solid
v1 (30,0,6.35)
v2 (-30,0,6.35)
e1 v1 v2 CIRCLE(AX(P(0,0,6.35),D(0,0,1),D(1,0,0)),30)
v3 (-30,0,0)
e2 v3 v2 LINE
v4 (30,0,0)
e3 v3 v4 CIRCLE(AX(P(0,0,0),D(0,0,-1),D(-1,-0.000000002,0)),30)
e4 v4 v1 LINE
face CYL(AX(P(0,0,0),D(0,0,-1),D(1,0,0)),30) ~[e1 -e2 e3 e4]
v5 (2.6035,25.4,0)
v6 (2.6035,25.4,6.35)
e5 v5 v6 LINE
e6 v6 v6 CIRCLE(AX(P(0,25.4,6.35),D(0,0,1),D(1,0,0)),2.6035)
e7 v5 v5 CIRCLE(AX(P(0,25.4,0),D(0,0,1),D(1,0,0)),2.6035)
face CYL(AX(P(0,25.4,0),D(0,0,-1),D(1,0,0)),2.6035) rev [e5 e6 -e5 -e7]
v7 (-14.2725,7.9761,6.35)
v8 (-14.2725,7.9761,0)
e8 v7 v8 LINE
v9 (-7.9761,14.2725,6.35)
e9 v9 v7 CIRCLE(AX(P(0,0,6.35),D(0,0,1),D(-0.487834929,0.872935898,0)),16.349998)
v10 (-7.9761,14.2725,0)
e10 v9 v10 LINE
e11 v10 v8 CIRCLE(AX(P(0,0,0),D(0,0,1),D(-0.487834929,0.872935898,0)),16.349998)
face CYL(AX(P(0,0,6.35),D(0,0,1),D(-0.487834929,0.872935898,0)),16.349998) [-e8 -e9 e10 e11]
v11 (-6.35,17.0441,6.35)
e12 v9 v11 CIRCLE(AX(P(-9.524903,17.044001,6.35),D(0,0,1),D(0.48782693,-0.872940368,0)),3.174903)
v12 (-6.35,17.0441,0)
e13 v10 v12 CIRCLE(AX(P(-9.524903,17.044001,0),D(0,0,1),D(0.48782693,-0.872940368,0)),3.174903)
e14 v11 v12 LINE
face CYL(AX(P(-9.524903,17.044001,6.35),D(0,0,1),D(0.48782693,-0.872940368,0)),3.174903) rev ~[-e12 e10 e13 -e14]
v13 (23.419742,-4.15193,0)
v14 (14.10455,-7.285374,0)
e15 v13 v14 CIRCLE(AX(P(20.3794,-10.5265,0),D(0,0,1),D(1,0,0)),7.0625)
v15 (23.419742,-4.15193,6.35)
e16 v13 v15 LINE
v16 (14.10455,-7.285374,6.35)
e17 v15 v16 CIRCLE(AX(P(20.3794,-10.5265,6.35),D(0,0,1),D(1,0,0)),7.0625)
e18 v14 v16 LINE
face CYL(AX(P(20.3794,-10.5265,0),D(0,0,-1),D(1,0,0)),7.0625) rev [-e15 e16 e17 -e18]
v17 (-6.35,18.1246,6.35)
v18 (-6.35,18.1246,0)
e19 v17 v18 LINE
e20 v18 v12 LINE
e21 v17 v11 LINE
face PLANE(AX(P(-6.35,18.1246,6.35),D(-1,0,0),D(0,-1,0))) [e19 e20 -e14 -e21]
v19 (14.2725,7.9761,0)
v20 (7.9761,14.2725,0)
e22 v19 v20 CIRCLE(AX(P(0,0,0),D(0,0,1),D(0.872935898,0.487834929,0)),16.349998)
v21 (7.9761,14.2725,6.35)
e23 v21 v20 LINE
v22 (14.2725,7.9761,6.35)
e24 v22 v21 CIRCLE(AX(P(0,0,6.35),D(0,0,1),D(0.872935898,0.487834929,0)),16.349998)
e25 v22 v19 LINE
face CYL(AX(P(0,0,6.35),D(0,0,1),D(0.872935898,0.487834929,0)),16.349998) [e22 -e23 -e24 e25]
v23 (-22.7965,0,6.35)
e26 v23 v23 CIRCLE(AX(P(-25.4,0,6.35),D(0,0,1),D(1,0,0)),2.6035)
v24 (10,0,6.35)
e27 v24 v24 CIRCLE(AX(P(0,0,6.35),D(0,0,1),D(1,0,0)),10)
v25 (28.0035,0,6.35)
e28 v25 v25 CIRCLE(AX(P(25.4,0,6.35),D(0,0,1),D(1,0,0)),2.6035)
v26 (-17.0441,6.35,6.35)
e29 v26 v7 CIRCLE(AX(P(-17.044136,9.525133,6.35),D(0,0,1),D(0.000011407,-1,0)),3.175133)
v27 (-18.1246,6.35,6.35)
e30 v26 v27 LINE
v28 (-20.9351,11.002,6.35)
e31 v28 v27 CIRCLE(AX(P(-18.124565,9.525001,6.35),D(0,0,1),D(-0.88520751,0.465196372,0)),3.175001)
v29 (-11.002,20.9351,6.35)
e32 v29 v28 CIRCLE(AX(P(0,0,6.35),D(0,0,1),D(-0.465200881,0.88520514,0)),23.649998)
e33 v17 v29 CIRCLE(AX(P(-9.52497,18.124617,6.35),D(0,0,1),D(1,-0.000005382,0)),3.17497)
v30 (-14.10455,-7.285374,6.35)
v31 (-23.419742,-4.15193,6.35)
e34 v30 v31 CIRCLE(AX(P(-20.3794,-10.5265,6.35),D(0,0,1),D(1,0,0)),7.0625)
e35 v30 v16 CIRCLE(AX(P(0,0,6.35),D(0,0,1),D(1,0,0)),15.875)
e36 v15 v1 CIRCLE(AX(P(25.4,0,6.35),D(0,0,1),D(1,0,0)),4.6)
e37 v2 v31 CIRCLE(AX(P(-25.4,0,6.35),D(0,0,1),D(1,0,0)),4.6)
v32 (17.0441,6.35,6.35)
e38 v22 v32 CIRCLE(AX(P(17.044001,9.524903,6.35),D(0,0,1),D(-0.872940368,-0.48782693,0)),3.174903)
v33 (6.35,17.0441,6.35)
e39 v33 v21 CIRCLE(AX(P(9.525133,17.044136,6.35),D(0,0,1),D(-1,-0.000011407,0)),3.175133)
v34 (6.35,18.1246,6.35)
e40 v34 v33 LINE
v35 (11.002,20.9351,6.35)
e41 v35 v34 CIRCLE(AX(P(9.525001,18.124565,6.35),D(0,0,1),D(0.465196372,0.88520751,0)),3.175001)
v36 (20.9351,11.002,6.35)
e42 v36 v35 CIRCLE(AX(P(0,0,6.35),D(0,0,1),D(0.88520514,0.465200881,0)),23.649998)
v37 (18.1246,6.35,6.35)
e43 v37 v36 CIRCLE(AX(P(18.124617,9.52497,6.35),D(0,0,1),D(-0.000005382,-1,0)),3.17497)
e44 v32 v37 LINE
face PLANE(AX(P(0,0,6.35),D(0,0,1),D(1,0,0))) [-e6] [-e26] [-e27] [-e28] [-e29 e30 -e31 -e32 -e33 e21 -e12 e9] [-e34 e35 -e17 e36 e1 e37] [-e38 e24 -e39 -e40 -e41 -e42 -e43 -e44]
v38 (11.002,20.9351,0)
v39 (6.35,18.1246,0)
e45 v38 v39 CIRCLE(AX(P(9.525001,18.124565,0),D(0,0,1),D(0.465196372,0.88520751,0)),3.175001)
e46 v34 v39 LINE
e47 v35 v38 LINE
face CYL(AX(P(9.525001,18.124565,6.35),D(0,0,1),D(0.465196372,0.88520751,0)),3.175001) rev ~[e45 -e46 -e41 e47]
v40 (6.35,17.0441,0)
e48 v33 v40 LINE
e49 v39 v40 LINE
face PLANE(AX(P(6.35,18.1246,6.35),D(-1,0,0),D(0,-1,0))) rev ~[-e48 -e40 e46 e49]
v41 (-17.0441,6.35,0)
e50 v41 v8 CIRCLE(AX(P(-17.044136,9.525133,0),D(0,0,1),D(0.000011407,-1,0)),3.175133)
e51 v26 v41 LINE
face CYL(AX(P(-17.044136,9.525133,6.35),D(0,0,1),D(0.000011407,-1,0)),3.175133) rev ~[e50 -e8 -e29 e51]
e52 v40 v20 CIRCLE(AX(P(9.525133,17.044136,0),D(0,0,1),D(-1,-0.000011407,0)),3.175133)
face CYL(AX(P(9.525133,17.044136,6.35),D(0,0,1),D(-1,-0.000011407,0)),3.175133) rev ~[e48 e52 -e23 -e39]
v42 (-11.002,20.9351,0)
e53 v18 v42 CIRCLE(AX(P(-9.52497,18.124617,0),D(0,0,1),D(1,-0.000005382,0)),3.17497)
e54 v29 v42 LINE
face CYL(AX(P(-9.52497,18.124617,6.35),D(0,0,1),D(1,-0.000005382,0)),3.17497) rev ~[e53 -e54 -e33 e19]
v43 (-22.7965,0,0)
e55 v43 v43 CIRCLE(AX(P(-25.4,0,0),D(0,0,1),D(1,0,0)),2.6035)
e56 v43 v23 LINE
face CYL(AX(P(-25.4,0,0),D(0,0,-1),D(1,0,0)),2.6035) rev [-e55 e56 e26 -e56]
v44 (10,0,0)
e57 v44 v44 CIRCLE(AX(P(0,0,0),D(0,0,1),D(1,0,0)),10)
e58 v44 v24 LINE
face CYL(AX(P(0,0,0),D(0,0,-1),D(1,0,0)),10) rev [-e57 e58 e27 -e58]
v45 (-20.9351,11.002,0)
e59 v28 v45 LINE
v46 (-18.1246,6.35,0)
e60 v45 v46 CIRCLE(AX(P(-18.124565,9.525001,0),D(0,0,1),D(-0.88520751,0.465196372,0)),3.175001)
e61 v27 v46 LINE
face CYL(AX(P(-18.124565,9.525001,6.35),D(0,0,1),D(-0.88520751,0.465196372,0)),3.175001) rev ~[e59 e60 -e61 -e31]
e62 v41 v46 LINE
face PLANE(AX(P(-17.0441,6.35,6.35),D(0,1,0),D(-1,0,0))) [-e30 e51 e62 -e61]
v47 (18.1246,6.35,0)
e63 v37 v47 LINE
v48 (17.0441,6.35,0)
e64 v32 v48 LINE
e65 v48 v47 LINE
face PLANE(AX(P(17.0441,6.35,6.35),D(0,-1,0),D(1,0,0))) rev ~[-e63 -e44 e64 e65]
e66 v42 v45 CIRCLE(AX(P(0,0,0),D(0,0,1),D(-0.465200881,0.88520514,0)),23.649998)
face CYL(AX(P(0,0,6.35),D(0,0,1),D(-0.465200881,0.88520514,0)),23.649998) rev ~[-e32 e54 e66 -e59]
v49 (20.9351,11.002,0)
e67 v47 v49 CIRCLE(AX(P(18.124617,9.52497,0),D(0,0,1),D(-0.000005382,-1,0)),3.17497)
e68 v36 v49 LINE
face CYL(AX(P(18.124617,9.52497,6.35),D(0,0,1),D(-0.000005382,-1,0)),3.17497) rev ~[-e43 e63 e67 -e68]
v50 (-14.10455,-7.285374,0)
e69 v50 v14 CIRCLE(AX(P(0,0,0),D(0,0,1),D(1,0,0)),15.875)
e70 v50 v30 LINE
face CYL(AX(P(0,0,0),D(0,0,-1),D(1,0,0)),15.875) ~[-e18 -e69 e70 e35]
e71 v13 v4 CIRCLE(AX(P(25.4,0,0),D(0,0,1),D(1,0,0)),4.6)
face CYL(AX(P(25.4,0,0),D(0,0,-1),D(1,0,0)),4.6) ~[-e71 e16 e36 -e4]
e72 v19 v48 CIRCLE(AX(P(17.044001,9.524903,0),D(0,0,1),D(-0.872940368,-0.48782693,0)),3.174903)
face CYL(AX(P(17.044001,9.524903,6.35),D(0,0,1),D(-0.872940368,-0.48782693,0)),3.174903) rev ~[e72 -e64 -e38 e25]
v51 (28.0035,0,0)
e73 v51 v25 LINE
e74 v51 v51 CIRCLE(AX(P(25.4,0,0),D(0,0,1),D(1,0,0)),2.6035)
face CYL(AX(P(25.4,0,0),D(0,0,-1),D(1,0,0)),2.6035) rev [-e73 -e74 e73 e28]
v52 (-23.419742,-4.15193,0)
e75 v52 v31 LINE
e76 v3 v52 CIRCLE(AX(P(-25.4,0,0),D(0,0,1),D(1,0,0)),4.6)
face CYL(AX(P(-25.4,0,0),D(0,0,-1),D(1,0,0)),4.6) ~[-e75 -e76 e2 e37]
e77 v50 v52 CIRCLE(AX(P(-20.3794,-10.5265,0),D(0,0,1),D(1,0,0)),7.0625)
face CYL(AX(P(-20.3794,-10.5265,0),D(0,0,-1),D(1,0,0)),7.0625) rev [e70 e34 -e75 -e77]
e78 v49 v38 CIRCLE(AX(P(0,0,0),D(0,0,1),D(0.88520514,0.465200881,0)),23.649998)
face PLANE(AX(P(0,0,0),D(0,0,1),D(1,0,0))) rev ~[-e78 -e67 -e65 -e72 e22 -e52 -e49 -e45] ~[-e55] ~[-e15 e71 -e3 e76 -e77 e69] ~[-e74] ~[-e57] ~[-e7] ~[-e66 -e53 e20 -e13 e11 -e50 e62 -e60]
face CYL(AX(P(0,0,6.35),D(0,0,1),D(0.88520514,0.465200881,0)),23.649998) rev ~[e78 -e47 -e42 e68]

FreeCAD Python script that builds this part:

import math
import FreeCAD as App
import Part
import Sketcher
Q = App.Units.Quantity

doc = App.newDocument("Part")
body = doc.addObject("PartDesign::Body", "Body")

sketch1 = body.newObject("Sketcher::SketchObject", "Sketch")
sketch1.AttachmentSupport = (doc.getObject("XY_Plane"), [""])
sketch1.MapMode = "FlatFace"
sketch1.addGeometry(Part.ArcOfCircle(Part.Circle(App.Vector(20.3794, -10.5265, 0), App.Vector(0, 0, 1), 7.0625), math.radians(64.501255), math.radians(152.682448)), False)
sketch1.addGeometry(Part.ArcOfCircle(Part.Circle(App.Vector(25.4, 0, 0), App.Vector(0, 0, 1), 4.6), math.radians(-115.498745), math.radians(0)), False)
sketch1.addGeometry(Part.ArcOfCircle(Part.Circle(App.Vector(0, 0, 0), App.Vector(0, 0, 1), 30), math.radians(0), math.radians(180)), False)
sketch1.addGeometry(Part.ArcOfCircle(Part.Circle(App.Vector(-25.4, 0, 0), App.Vector(0, 0, 1), 4.6), math.radians(-179.999999), math.radians(-64.501255)), False)
sketch1.addGeometry(Part.ArcOfCircle(Part.Circle(App.Vector(-20.3794, -10.5265, 0), App.Vector(0, 0, 1), 7.0625), math.radians(27.317552), math.radians(115.498745)), False)
sketch1.addGeometry(Part.ArcOfCircle(Part.Circle(App.Vector(0, 0, 0), App.Vector(0, 0, 1), 15.875), math.radians(-152.682448), math.radians(-27.317552)), False)
sketch1.addGeometry(Part.Circle(App.Vector(0, 25.4, 0), App.Vector(0, 0, 1), 2.6035), False)
sketch1.addGeometry(Part.Circle(App.Vector(25.4, 0, 0), App.Vector(0, 0, 1), 2.6035), False)
sketch1.addGeometry(Part.Circle(App.Vector(0, 0, 0), App.Vector(0, 0, 1), 10), False)
sketch1.addGeometry(Part.Circle(App.Vector(-25.4, 0, 0), App.Vector(0, 0, 1), 2.6035), False)
sketch1.addConstraint(Sketcher.Constraint("Tangent", 0, 1, 1, 1))
sketch1.addConstraint(Sketcher.Constraint("Tangent", 1, 2, 2, 1))
sketch1.addConstraint(Sketcher.Constraint("Tangent", 2, 2, 3, 1))
sketch1.addConstraint(Sketcher.Constraint("Tangent", 3, 2, 4, 2))
sketch1.addConstraint(Sketcher.Constraint("Tangent", 4, 1, 5, 1))
sketch1.addConstraint(Sketcher.Constraint("Tangent", 5, 2, 0, 2))
sketch1.addConstraint(Sketcher.Constraint("Coincident", 2, 3, -1, 1))
sketch1.addConstraint(Sketcher.Constraint("Coincident", 5, 3, -1, 1))
sketch1.addConstraint(Sketcher.Constraint("Coincident", 8, 3, -1, 1))
sketch1.addConstraint(Sketcher.Constraint("Coincident", 7, 3, 1, 3))
sketch1.addConstraint(Sketcher.Constraint("Coincident", 9, 3, 3, 3))
sketch1.addConstraint(Sketcher.Constraint("Equal", 1, 3))
sketch1.addConstraint(Sketcher.Constraint("Equal", 0, 4))
sketch1.addConstraint(Sketcher.Constraint("Equal", 6, 7))
sketch1.addConstraint(Sketcher.Constraint("Equal", 7, 9))
sketch1.addConstraint(Sketcher.Constraint("PointOnObject", 1, 3, -1))
sketch1.addConstraint(Sketcher.Constraint("PointOnObject", 3, 3, -1))
sketch1.addConstraint(Sketcher.Constraint("PointOnObject", 6, 3, -2))
sketch1.addConstraint(Sketcher.Constraint("Diameter", 6, Q("0.205 in")))
sketch1.addConstraint(Sketcher.Constraint("Radius", 5, Q("0.625 in")))
sketch1.addConstraint(Sketcher.Constraint("DistanceX", 3, 3, 1, 3, Q("2 in")))
sketch1.addConstraint(Sketcher.Constraint("Diameter", 8, Q("0.7874 in")))
sketch1.addConstraint(Sketcher.Constraint("Radius", 2, Q("1.1811 in")))
sketch1.addConstraint(Sketcher.Constraint("DistanceY", -1, 1, 6, 3, Q("1 in")))
sketch1.addConstraint(Sketcher.Constraint("Radius", 0, Q("7.0625 mm")))
pad1 = body.newObject("PartDesign::Pad", "Pad")
pad1.Profile = sketch1
pad1.Length = Q("0.25 in")

sketch2 = body.newObject("Sketcher::SketchObject", "Sketch001")
sketch2.AttachmentSupport = (doc.getObject("XY_Plane"), [""])
sketch2.MapMode = "FlatFace"
sketch2.AttachmentOffset = App.Placement(App.Vector(0, 0, 0.25 * 25.4), App.Rotation())
sketch2.addGeometry(Part.ArcOfCircle(Part.Circle(App.Vector(-9.525, 18.1246, 0), App.Vector(0, 0, 1), 3.175), math.radians(0), math.radians(117.72324)), False)
sketch2.addGeometry(Part.ArcOfCircle(Part.Circle(App.Vector(0, 0, 0), App.Vector(0, 0, 1), 23.649998), math.radians(117.723223), math.radians(152.276777)), False)
sketch2.addGeometry(Part.ArcOfCircle(Part.Circle(App.Vector(-18.1246, 9.525, 0), App.Vector(0, 0, 1), 3.174971), math.radians(152.27676), math.radians(270)), False)
sketch2.addGeometry(Part.LineSegment(App.Vector(-18.1246, 6.35, 0), App.Vector(-17.0441, 6.35, 0)), False)
sketch2.addGeometry(Part.ArcOfCircle(Part.Circle(App.Vector(-17.0441, 9.525, 0), App.Vector(0, 0, 1), 3.175), math.radians(-90), math.radians(-29.198505)), False)
sketch2.addGeometry(Part.ArcOfCircle(Part.Circle(App.Vector(0, 0, 0), App.Vector(0, 0, 1), 16.349998), math.radians(119.198377), math.radians(150.801623)), False)
sketch2.addGeometry(Part.ArcOfCircle(Part.Circle(App.Vector(-9.525, 17.0441, 0), App.Vector(0, 0, 1), 3.175037), math.radians(-60.801495), math.radians(0)), False)
sketch2.addGeometry(Part.LineSegment(App.Vector(-6.35, 17.0441, 0), App.Vector(-6.35, 18.1246, 0)), False)
sketch2.addGeometry(Part.ArcOfCircle(Part.Circle(App.Vector(18.1246, 9.525, 0), App.Vector(0, 0, 1), 3.175), math.radians(-90), math.radians(27.72324)), False)
sketch2.addGeometry(Part.ArcOfCircle(Part.Circle(App.Vector(0, 0, 0), App.Vector(0, 0, 1), 23.649998), math.radians(27.723223), math.radians(62.276777)), False)
sketch2.addGeometry(Part.ArcOfCircle(Part.Circle(App.Vector(9.525, 18.1246, 0), App.Vector(0, 0, 1), 3.174971), math.radians(62.27676), math.radians(180)), False)
sketch2.addGeometry(Part.LineSegment(App.Vector(6.35, 18.1246, 0), App.Vector(6.35, 17.0441, 0)), False)
sketch2.addGeometry(Part.ArcOfCircle(Part.Circle(App.Vector(9.525, 17.0441, 0), App.Vector(0, 0, 1), 3.175), math.radians(180), math.radians(240.801495)), False)
sketch2.addGeometry(Part.ArcOfCircle(Part.Circle(App.Vector(0, 0, 0), App.Vector(0, 0, 1), 16.349998), math.radians(29.198377), math.radians(60.801623)), False)
sketch2.addGeometry(Part.ArcOfCircle(Part.Circle(App.Vector(17.0441, 9.525, 0), App.Vector(0, 0, 1), 3.175037), math.radians(-150.801495), math.radians(-90)), False)
sketch2.addGeometry(Part.LineSegment(App.Vector(17.0441, 6.35, 0), App.Vector(18.1246, 6.35, 0)), False)
sketch2.addConstraint(Sketcher.Constraint("Tangent", 0, 2, 1, 1))
sketch2.addConstraint(Sketcher.Constraint("Tangent", 1, 2, 2, 1))
sketch2.addConstraint(Sketcher.Constraint("Tangent", 2, 2, 3, 1))
sketch2.addConstraint(Sketcher.Constraint("Tangent", 3, 2, 4, 1))
sketch2.addConstraint(Sketcher.Constraint("Tangent", 4, 2, 5, 2))
sketch2.addConstraint(Sketcher.Constraint("Tangent", 5, 1, 6, 1))
sketch2.addConstraint(Sketcher.Constraint("Tangent", 6, 2, 7, 1))
sketch2.addConstraint(Sketcher.Constraint("Tangent", 7, 2, 0, 1))
sketch2.addConstraint(Sketcher.Constraint("Tangent", 8, 2, 9, 1))
sketch2.addConstraint(Sketcher.Constraint("Tangent", 9, 2, 10, 1))
sketch2.addConstraint(Sketcher.Constraint("Tangent", 10, 2, 11, 1))
sketch2.addConstraint(Sketcher.Constraint("Tangent", 11, 2, 12, 1))
sketch2.addConstraint(Sketcher.Constraint("Tangent", 12, 2, 13, 2))
sketch2.addConstraint(Sketcher.Constraint("Tangent", 13, 1, 14, 1))
sketch2.addConstraint(Sketcher.Constraint("Tangent", 14, 2, 15, 1))
sketch2.addConstraint(Sketcher.Constraint("Tangent", 15, 2, 8, 1))
sketch2.addConstraint(Sketcher.Constraint("Horizontal", 3))
sketch2.addConstraint(Sketcher.Constraint("Vertical", 7))
sketch2.addConstraint(Sketcher.Constraint("Vertical", 11))
sketch2.addConstraint(Sketcher.Constraint("Horizontal", 15))
sketch2.addConstraint(Sketcher.Constraint("Coincident", 1, 3, -1, 1))
sketch2.addConstraint(Sketcher.Constraint("Coincident", 5, 3, -1, 1))
sketch2.addConstraint(Sketcher.Constraint("Coincident", 9, 3, -1, 1))
sketch2.addConstraint(Sketcher.Constraint("Coincident", 13, 3, -1, 1))
sketch2.addConstraint(Sketcher.Constraint("Equal", 0, 2))
sketch2.addConstraint(Sketcher.Constraint("Equal", 2, 4))
sketch2.addConstraint(Sketcher.Constraint("Equal", 4, 6))
sketch2.addConstraint(Sketcher.Constraint("Equal", 6, 8))
sketch2.addConstraint(Sketcher.Constraint("Equal", 1, 9))
sketch2.addConstraint(Sketcher.Constraint("Equal", 8, 10))
sketch2.addConstraint(Sketcher.Constraint("Equal", 10, 12))
sketch2.addConstraint(Sketcher.Constraint("Equal", 5, 13))
sketch2.addConstraint(Sketcher.Constraint("Equal", 12, 14))
sketch2.addConstraint(Sketcher.Constraint("Horizontal", 4, 3, 8, 3))
sketch2.addConstraint(Sketcher.Constraint("Horizontal", 0, 3, 10, 3))
sketch2.addConstraint(Sketcher.Constraint("Equal", 15, 7))
sketch2.addConstraint(Sketcher.Constraint("Radius", 0, Q("0.125 in")))
sketch2.addConstraint(Sketcher.Constraint("DistanceY", -1, 1, 2, 2, Q("0.25 in")))
sketch2.addConstraint(Sketcher.Constraint("Radius", 1, Q("0.9311 in")))
sketch2.addConstraint(Sketcher.Constraint("Radius", 5, Q("0.6437 in")))
pocket1 = body.newObject("PartDesign::Pocket", "Pocket")
pocket1.Profile = sketch2
pocket1.Type = "ThroughAll"

doc.recompute()
